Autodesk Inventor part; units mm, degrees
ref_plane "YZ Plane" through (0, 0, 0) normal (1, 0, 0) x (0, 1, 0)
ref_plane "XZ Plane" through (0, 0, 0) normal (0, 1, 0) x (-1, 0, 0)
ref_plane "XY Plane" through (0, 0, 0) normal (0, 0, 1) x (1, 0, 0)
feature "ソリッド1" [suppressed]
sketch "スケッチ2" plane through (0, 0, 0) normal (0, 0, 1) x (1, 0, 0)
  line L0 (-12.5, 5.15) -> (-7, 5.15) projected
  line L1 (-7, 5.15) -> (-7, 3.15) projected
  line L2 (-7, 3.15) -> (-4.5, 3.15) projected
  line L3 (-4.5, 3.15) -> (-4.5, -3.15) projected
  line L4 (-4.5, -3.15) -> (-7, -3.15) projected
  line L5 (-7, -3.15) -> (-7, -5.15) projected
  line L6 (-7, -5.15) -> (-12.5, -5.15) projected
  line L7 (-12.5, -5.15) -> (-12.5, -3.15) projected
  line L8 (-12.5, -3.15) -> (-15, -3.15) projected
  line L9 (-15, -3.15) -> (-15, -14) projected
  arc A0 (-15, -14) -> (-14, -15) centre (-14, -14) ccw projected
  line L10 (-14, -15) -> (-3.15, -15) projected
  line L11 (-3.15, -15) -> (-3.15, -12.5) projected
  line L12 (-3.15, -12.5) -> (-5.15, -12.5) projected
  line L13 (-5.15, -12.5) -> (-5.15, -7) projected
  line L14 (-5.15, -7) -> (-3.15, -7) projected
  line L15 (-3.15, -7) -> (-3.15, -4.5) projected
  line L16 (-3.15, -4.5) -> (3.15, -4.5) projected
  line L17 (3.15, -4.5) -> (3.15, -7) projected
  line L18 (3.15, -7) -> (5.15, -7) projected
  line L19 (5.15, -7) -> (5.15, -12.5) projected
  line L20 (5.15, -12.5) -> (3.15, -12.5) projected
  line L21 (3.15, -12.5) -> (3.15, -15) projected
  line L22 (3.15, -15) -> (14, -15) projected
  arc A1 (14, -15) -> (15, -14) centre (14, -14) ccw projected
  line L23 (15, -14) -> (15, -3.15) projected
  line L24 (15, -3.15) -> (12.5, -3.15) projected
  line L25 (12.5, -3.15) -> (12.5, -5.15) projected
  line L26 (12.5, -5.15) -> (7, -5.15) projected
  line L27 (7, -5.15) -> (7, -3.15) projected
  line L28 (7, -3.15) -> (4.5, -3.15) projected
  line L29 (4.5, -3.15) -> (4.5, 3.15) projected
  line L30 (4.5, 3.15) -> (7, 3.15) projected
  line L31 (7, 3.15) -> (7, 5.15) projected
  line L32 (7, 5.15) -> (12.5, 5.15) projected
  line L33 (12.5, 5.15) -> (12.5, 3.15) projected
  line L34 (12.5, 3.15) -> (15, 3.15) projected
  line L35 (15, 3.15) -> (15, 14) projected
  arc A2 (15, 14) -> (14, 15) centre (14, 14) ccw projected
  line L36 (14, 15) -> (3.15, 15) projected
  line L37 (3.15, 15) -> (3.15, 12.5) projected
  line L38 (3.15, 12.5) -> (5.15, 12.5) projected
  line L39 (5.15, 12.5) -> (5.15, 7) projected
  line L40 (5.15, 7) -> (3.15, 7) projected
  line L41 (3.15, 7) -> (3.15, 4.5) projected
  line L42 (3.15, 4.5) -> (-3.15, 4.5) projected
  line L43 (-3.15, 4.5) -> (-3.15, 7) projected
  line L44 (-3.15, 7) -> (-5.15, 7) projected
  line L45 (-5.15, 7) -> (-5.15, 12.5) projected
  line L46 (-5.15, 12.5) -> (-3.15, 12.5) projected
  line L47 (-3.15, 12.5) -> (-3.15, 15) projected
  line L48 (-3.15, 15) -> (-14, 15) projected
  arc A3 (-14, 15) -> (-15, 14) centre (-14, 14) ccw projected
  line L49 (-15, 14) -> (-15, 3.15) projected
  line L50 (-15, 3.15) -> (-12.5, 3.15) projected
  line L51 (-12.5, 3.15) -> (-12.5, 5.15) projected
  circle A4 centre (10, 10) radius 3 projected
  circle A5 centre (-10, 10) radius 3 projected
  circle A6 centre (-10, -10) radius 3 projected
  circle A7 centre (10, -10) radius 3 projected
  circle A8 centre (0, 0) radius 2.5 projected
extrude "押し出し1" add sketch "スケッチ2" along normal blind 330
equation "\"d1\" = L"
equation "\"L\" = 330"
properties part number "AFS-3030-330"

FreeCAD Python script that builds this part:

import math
import FreeCAD as App
import Part
import Sketcher
Q = App.Units.Quantity

doc = App.newDocument("Part")
body = doc.addObject("PartDesign::Body", "Body")

# Sketch on XY plane
sketch1 = body.newObject("Sketcher::SketchObject", "Sketch")
sketch1.AttachmentSupport = (doc.getObject("XY_Plane"), [""])
sketch1.MapMode = "FlatFace"
sketch1.addGeometry([
    Part.LineSegment(App.Vector(-12.5, 3.1, 0), App.Vector(-12.5, 5.2, 0)),  # 0
    Part.LineSegment(App.Vector(-12.5, 5.2, 0), App.Vector(-7, 5.2, 0)),  # 1
    Part.LineSegment(App.Vector(-7, 5.2, 0), App.Vector(-7, 3.1, 0)),  # 2
    Part.LineSegment(App.Vector(-7, 3.1, 0), App.Vector(-4.5, 3.1, 0)),  # 3
    Part.LineSegment(App.Vector(-4.5, 3.1, 0), App.Vector(-4.5, -3.1, 0)),  # 4
    Part.LineSegment(App.Vector(-4.5, -3.1, 0), App.Vector(-7, -3.1, 0)),  # 5
    Part.LineSegment(App.Vector(-7, -3.1, 0), App.Vector(-7, -5.2, 0)),  # 6
    Part.LineSegment(App.Vector(-7, -5.2, 0), App.Vector(-12.5, -5.2, 0)),  # 7
    Part.LineSegment(App.Vector(-12.5, -5.2, 0), App.Vector(-12.5, -3.1, 0)),  # 8
    Part.LineSegment(App.Vector(-12.5, -3.1, 0), App.Vector(-15, -3.1, 0)),  # 9
    Part.LineSegment(App.Vector(-15, -3.1, 0), App.Vector(-15, -14, 0)),  # 10
    Part.ArcOfCircle(Part.Circle(App.Vector(-14, -14, 0), App.Vector(0, 0, 1), 1), math.radians(180), math.radians(270)),  # 11
    Part.LineSegment(App.Vector(-14, -15, 0), App.Vector(-3.1, -15, 0)),  # 12
    Part.LineSegment(App.Vector(-3.1, -15, 0), App.Vector(-3.1, -12.5, 0)),  # 13
    Part.LineSegment(App.Vector(-3.1, -12.5, 0), App.Vector(-5.2, -12.5, 0)),  # 14
    Part.LineSegment(App.Vector(-5.2, -12.5, 0), App.Vector(-5.2, -7, 0)),  # 15
    Part.LineSegment(App.Vector(-5.2, -7, 0), App.Vector(-3.1, -7, 0)),  # 16
    Part.LineSegment(App.Vector(-3.1, -7, 0), App.Vector(-3.1, -4.5, 0)),  # 17
    Part.LineSegment(App.Vector(-3.1, -4.5, 0), App.Vector(3.1, -4.5, 0)),  # 18
    Part.LineSegment(App.Vector(3.1, -4.5, 0), App.Vector(3.1, -7, 0)),  # 19
    Part.LineSegment(App.Vector(3.1, -7, 0), App.Vector(5.2, -7, 0)),  # 20
    Part.LineSegment(App.Vector(5.2, -7, 0), App.Vector(5.2, -12.5, 0)),  # 21
    Part.LineSegment(App.Vector(5.2, -12.5, 0), App.Vector(3.1, -12.5, 0)),  # 22
    Part.LineSegment(App.Vector(3.1, -12.5, 0), App.Vector(3.1, -15, 0)),  # 23
    Part.LineSegment(App.Vector(3.1, -15, 0), App.Vector(14, -15, 0)),  # 24
    Part.ArcOfCircle(Part.Circle(App.Vector(14, -14, 0), App.Vector(0, 0, 1), 1), math.radians(-90), math.radians(0)),  # 25
    Part.LineSegment(App.Vector(15, -14, 0), App.Vector(15, -3.1, 0)),  # 26
    Part.LineSegment(App.Vector(15, -3.1, 0), App.Vector(12.5, -3.1, 0)),  # 27
    Part.LineSegment(App.Vector(12.5, -3.1, 0), App.Vector(12.5, -5.2, 0)),  # 28
    Part.LineSegment(App.Vector(12.5, -5.2, 0), App.Vector(7, -5.2, 0)),  # 29
    Part.LineSegment(App.Vector(7, -5.2, 0), App.Vector(7, -3.1, 0)),  # 30
    Part.LineSegment(App.Vector(7, -3.1, 0), App.Vector(4.5, -3.1, 0)),  # 31
    Part.LineSegment(App.Vector(4.5, -3.1, 0), App.Vector(4.5, 3.1, 0)),  # 32
    Part.LineSegment(App.Vector(4.5, 3.1, 0), App.Vector(7, 3.1, 0)),  # 33
    Part.LineSegment(App.Vector(7, 3.1, 0), App.Vector(7, 5.2, 0)),  # 34
    Part.LineSegment(App.Vector(7, 5.2, 0), App.Vector(12.5, 5.2, 0)),  # 35
    Part.LineSegment(App.Vector(12.5, 5.2, 0), App.Vector(12.5, 3.1, 0)),  # 36
    Part.LineSegment(App.Vector(12.5, 3.1, 0), App.Vector(15, 3.1, 0)),  # 37
    Part.LineSegment(App.Vector(15, 3.1, 0), App.Vector(15, 14, 0)),  # 38
    Part.ArcOfCircle(Part.Circle(App.Vector(14, 14, 0), App.Vector(0, 0, 1), 1), math.radians(0), math.radians(90)),  # 39
    Part.LineSegment(App.Vector(14, 15, 0), App.Vector(3.1, 15, 0)),  # 40
    Part.LineSegment(App.Vector(3.1, 15, 0), App.Vector(3.1, 12.5, 0)),  # 41
    Part.LineSegment(App.Vector(3.1, 12.5, 0), App.Vector(5.2, 12.5, 0)),  # 42
    Part.LineSegment(App.Vector(5.2, 12.5, 0), App.Vector(5.2, 7, 0)),  # 43
    Part.LineSegment(App.Vector(5.2, 7, 0), App.Vector(3.1, 7, 0)),  # 44
    Part.LineSegment(App.Vector(3.1, 7, 0), App.Vector(3.1, 4.5, 0)),  # 45
    Part.LineSegment(App.Vector(3.1, 4.5, 0), App.Vector(-3.1, 4.5, 0)),  # 46
    Part.LineSegment(App.Vector(-3.1, 4.5, 0), App.Vector(-3.1, 7, 0)),  # 47
    Part.LineSegment(App.Vector(-3.1, 7, 0), App.Vector(-5.2, 7, 0)),  # 48
    Part.LineSegment(App.Vector(-5.2, 7, 0), App.Vector(-5.2, 12.5, 0)),  # 49
    Part.LineSegment(App.Vector(-5.2, 12.5, 0), App.Vector(-3.1, 12.5, 0)),  # 50
    Part.LineSegment(App.Vector(-3.1, 12.5, 0), App.Vector(-3.1, 15, 0)),  # 51
    Part.LineSegment(App.Vector(-3.1, 15, 0), App.Vector(-14, 15, 0)),  # 52
    Part.ArcOfCircle(Part.Circle(App.Vector(-14, 14, 0), App.Vector(0, 0, 1), 1), math.radians(90), math.radians(180)),  # 53
    Part.LineSegment(App.Vector(-15, 14, 0), App.Vector(-15, 3.1, 0)),  # 54
    Part.LineSegment(App.Vector(-15, 3.1, 0), App.Vector(-12.5, 3.1, 0)),  # 55
    Part.Circle(App.Vector(-10, -10, 0), App.Vector(0, 0, 1), 3),  # 56
    Part.Circle(App.Vector(10, -10, 0), App.Vector(0, 0, 1), 3),  # 57
    Part.Circle(App.Vector(-10, 10, 0), App.Vector(0, 0, 1), 3),  # 58
    Part.Circle(App.Vector(0, 0, 0), App.Vector(0, 0, 1), 2.5),  # 59
    Part.Circle(App.Vector(10, 10, 0), App.Vector(0, 0, 1), 3),  # 60
], False)
sketch1.addConstraint([
    Sketcher.Constraint("Coincident", 0, 2, 1, 1),
    Sketcher.Constraint("Coincident", 1, 2, 2, 1),
    Sketcher.Constraint("Coincident", 2, 2, 3, 1),
    Sketcher.Constraint("Coincident", 3, 2, 4, 1),
    Sketcher.Constraint("Coincident", 4, 2, 5, 1),
    Sketcher.Constraint("Coincident", 5, 2, 6, 1),
    Sketcher.Constraint("Coincident", 6, 2, 7, 1),
    Sketcher.Constraint("Coincident", 7, 2, 8, 1),
    Sketcher.Constraint("Coincident", 8, 2, 9, 1),
    Sketcher.Constraint("Coincident", 9, 2, 10, 1),
    Sketcher.Constraint("Tangent", 10, 2, 11, 1),
    Sketcher.Constraint("Tangent", 11, 2, 12, 1),
    Sketcher.Constraint("Coincident", 12, 2, 13, 1),
    Sketcher.Constraint("Coincident", 13, 2, 14, 1),
    Sketcher.Constraint("Coincident", 14, 2, 15, 1),
    Sketcher.Constraint("Coincident", 15, 2, 16, 1),
    Sketcher.Constraint("Coincident", 16, 2, 17, 1),
    Sketcher.Constraint("Coincident", 17, 2, 18, 1),
    Sketcher.Constraint("Coincident", 18, 2, 19, 1),
    Sketcher.Constraint("Coincident", 19, 2, 20, 1),
    Sketcher.Constraint("Coincident", 20, 2, 21, 1),
    Sketcher.Constraint("Coincident", 21, 2, 22, 1),
    Sketcher.Constraint("Coincident", 22, 2, 23, 1),
    Sketcher.Constraint("Coincident", 23, 2, 24, 1),
    Sketcher.Constraint("Tangent", 24, 2, 25, 1),
    Sketcher.Constraint("Tangent", 25, 2, 26, 1),
    Sketcher.Constraint("Coincident", 26, 2, 27, 1),
    Sketcher.Constraint("Coincident", 27, 2, 28, 1),
    Sketcher.Constraint("Coincident", 28, 2, 29, 1),
    Sketcher.Constraint("Coincident", 29, 2, 30, 1),
    Sketcher.Constraint("Coincident", 30, 2, 31, 1),
    Sketcher.Constraint("Coincident", 31, 2, 32, 1),
    Sketcher.Constraint("Coincident", 32, 2, 33, 1),
    Sketcher.Constraint("Coincident", 33, 2, 34, 1),
    Sketcher.Constraint("Coincident", 34, 2, 35, 1),
    Sketcher.Constraint("Coincident", 35, 2, 36, 1),
    Sketcher.Constraint("Coincident", 36, 2, 37, 1),
    Sketcher.Constraint("Coincident", 37, 2, 38, 1),
    Sketcher.Constraint("Tangent", 38, 2, 39, 1),
    Sketcher.Constraint("Tangent", 39, 2, 40, 1),
    Sketcher.Constraint("Coincident", 40, 2, 41, 1),
    Sketcher.Constraint("Coincident", 41, 2, 42, 1),
    Sketcher.Constraint("Coincident", 42, 2, 43, 1),
    Sketcher.Constraint("Coincident", 43, 2, 44, 1),
    Sketcher.Constraint("Coincident", 44, 2, 45, 1),
    Sketcher.Constraint("Coincident", 45, 2, 46, 1),
    Sketcher.Constraint("Coincident", 46, 2, 47, 1),
    Sketcher.Constraint("Coincident", 47, 2, 48, 1),
    Sketcher.Constraint("Coincident", 48, 2, 49, 1),
    Sketcher.Constraint("Coincident", 49, 2, 50, 1),
    Sketcher.Constraint("Coincident", 50, 2, 51, 1),
    Sketcher.Constraint("Coincident", 51, 2, 52, 1),
    Sketcher.Constraint("Tangent", 52, 2, 53, 1),
    Sketcher.Constraint("Tangent", 53, 2, 54, 1),
    Sketcher.Constraint("Coincident", 54, 2, 55, 1),
    Sketcher.Constraint("Coincident", 55, 2, 0, 1),
    Sketcher.Constraint("Vertical", 0),
    Sketcher.Constraint("Horizontal", 1),
    Sketcher.Constraint("Vertical", 2),
    Sketcher.Constraint("Horizontal", 3),
    Sketcher.Constraint("Vertical", 4),
    Sketcher.Constraint("Horizontal", 5),
    Sketcher.Constraint("Vertical", 6),
    Sketcher.Constraint("Horizontal", 7),
    Sketcher.Constraint("Vertical", 8),
    Sketcher.Constraint("Horizontal", 9),
    Sketcher.Constraint("Vertical", 10),
    Sketcher.Constraint("Horizontal", 12),
    Sketcher.Constraint("Vertical", 13),
    Sketcher.Constraint("Horizontal", 14),
    Sketcher.Constraint("Vertical", 15),
    Sketcher.Constraint("Horizontal", 16),
    Sketcher.Constraint("Vertical", 17),
    Sketcher.Constraint("Horizontal", 18),
    Sketcher.Constraint("Vertical", 19),
    Sketcher.Constraint("Horizontal", 20),
    Sketcher.Constraint("Vertical", 21),
    Sketcher.Constraint("Horizontal", 22),
    Sketcher.Constraint("Vertical", 23),
    Sketcher.Constraint("Horizontal", 24),
    Sketcher.Constraint("Vertical", 26),
    Sketcher.Constraint("Horizontal", 27),
    Sketcher.Constraint("Vertical", 28),
    Sketcher.Constraint("Horizontal", 29),
    Sketcher.Constraint("Vertical", 30),
    Sketcher.Constraint("Horizontal", 31),
    Sketcher.Constraint("Vertical", 32),
    Sketcher.Constraint("Horizontal", 33),
    Sketcher.Constraint("Vertical", 34),
    Sketcher.Constraint("Horizontal", 35),
    Sketcher.Constraint("Vertical", 36),
    Sketcher.Constraint("Horizontal", 37),
    Sketcher.Constraint("Vertical", 38),
    Sketcher.Constraint("Horizontal", 40),
    Sketcher.Constraint("Vertical", 41),
    Sketcher.Constraint("Horizontal", 42),
    Sketcher.Constraint("Vertical", 43),
    Sketcher.Constraint("Horizontal", 44),
    Sketcher.Constraint("Vertical", 45),
    Sketcher.Constraint("Horizontal", 46),
    Sketcher.Constraint("Vertical", 47),
    Sketcher.Constraint("Horizontal", 48),
    Sketcher.Constraint("Vertical", 49),
    Sketcher.Constraint("Horizontal", 50),
    Sketcher.Constraint("Vertical", 51),
    Sketcher.Constraint("Horizontal", 52),
    Sketcher.Constraint("Vertical", 54),
    Sketcher.Constraint("Horizontal", 55),
    Sketcher.Constraint("Coincident", 59, 3, -1, 1),
    Sketcher.Constraint("Equal", 11, 25),
    Sketcher.Constraint("Equal", 25, 39),
    Sketcher.Constraint("Equal", 39, 53),
    Sketcher.Constraint("Equal", 56, 57),
    Sketcher.Constraint("Equal", 57, 58),
    Sketcher.Constraint("Equal", 58, 60),
    Sketcher.Constraint("Symmetric", 11, 3, 39, 3, -1, 1),
    Sketcher.Constraint("Symmetric", 25, 3, 53, 3, -1, 1),
    Sketcher.Constraint("Symmetric", 57, 3, 58, 3, -1, 1),
    Sketcher.Constraint("Symmetric", 56, 3, 60, 3, -1, 1),
    Sketcher.Constraint("Symmetric", 0, 2, 28, 2, -1, 1),
    Sketcher.Constraint("Symmetric", 2, 2, 30, 2, -1, 1),
    Sketcher.Constraint("Symmetric", 4, 2, 32, 2, -1, 1),
    Sketcher.Constraint("Symmetric", 6, 2, 34, 2, -1, 1),
    Sketcher.Constraint("Symmetric", 8, 2, 36, 2, -1, 1),
    Sketcher.Constraint("Symmetric", 13, 2, 41, 2, -1, 1),
    Sketcher.Constraint("Symmetric", 15, 2, 43, 2, -1, 1),
    Sketcher.Constraint("Symmetric", 17, 2, 45, 2, -1, 1),
    Sketcher.Constraint("Symmetric", 19, 2, 47, 2, -1, 1),
    Sketcher.Constraint("Symmetric", 21, 2, 49, 2, -1, 1),
    Sketcher.Constraint("Symmetric", 11, 3, 25, 3, -2),
    Sketcher.Constraint("Symmetric", 56, 3, 57, 3, -2),
    Sketcher.Constraint("Symmetric", 16, 2, 19, 2, -2),
    Sketcher.Constraint("Symmetric", 14, 2, 21, 2, -2),
    Sketcher.Constraint("Symmetric", 8, 2, 27, 2, -2),
    Sketcher.Constraint("Symmetric", 6, 2, 29, 2, -2),
    Sketcher.Constraint("Horizontal", 5, 2, 8, 2),
    Sketcher.Constraint("Horizontal", 27, 2, 30, 2),
    Sketcher.Constraint("Horizontal", 37, 2, 54, 2),
    Sketcher.Constraint("Vertical", 13, 2, 16, 2),
    Sketcher.Constraint("Vertical", 19, 2, 22, 2),
    Sketcher.Constraint("Vertical", 47, 2, 50, 2),
    Sketcher.Constraint("Equal", 5, 9),
    Sketcher.Constraint("Equal", 50, 0),
    Sketcher.Constraint("Equal", 46, 4),
    Sketcher.Constraint("Equal", 52, 10),
    Sketcher.Constraint("Equal", 55, 13),
    Sketcher.Constraint("Equal", 35, 15),
    Sketcher.Constraint("Equal", 13, 17),
    Sketcher.Constraint("Diameter", 56, Q("6 mm")),
    Sketcher.Constraint("Diameter", 59, Q("5 mm")),
    Sketcher.Constraint("Radius", 11, Q("1 mm")),
    Sketcher.Constraint("DistanceX", 14, 2, 14, 1, Q("2 mm")),
    Sketcher.Constraint("DistanceX", 1, 1, 1, 2, Q("5.5 mm")),
    Sketcher.Constraint("DistanceX", 3, 1, 3, 2, Q("2.5 mm")),
    Sketcher.Constraint("DistanceX", 18, 1, 18, 2, Q("6.3 mm")),
    Sketcher.Constraint("DistanceX", 11, 3, -1, 1, Q("14 mm")),
    Sketcher.Constraint("DistanceX", 56, 3, -1, 1, Q("10 mm")),
    Sketcher.Constraint("DistanceY", 56, 3, -1, 1, Q("10 mm")),
])
pad1 = body.newObject("PartDesign::Pad", "Pad")
pad1.Profile = sketch1
pad1.Length = 330

doc.recompute()
